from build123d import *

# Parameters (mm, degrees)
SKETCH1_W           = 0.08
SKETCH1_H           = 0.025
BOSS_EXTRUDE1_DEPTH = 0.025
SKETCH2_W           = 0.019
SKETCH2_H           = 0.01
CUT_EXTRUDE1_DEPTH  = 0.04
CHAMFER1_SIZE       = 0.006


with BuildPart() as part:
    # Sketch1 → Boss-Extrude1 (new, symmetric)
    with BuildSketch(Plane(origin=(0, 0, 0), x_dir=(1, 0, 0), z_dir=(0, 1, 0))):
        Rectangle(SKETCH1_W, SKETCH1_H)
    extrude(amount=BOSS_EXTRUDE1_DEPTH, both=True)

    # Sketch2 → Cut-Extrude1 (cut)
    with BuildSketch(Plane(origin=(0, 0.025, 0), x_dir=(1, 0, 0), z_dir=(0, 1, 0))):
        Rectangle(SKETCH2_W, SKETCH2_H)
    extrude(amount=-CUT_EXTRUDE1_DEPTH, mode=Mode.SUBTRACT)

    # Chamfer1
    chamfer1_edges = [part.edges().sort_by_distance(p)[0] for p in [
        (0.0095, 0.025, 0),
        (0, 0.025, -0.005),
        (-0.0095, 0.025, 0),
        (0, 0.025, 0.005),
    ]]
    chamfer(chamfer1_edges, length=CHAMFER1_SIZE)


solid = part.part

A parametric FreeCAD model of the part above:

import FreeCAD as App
import Part
import Sketcher

V = App.Vector


def edges_at(feature, points):
    """Names of the edges that pass closest to the given points."""
    edges = feature.Shape.Edges
    near = lambda p: min(range(len(edges)), key=lambda i: edges[i].distToShape(Part.Vertex(*p))[0])
    return sorted({f"Edge{near(p) + 1}" for p in points})

doc = App.newDocument("Part")
params = doc.addObject("Spreadsheet::Sheet", "Params")
for row, (alias, value) in enumerate([
    ("sketch1_width", "0.08 mm"),
    ("pad1_length", "0.05 mm"),
    ("sketch2_height", "0.01 mm"),
    ("pocket1_length", "0.04 mm"),
    ("chamfer_size", "0.006 mm"),
], start=1):
    params.set(f"A{row}", alias)
    params.set(f"B{row}", "=" + value)
    params.setAlias(f"B{row}", alias)

body = doc.addObject("PartDesign::Body", "Body")

# Sketch on XZ plane
sketch1 = doc.addObject("Sketcher::SketchObject", "Sketch")
body.addObject(sketch1)
sketch1.AttachmentSupport = (doc.XZ_Plane, [""])
sketch1.MapMode = "FlatFace"
sketch1.addGeometry(Part.LineSegment(V(-0.04, -0.013, 0), V(-0.04, 0.013, 0)), False)
sketch1.addGeometry(Part.LineSegment(V(-0.04, 0.013, 0), V(0.04, 0.013, 0)), False)
sketch1.addGeometry(Part.LineSegment(V(0.04, 0.013, 0), V(0.04, -0.013, 0)), False)
sketch1.addGeometry(Part.LineSegment(V(0.04, -0.013, 0), V(-0.04, -0.013, 0)), False)
sketch1.addConstraint(Sketcher.Constraint("Coincident", 0, 2, 1, 1))
sketch1.addConstraint(Sketcher.Constraint("Coincident", 1, 2, 2, 1))
sketch1.addConstraint(Sketcher.Constraint("Coincident", 2, 2, 3, 1))
sketch1.addConstraint(Sketcher.Constraint("Coincident", 3, 2, 0, 1))
sketch1.addConstraint(Sketcher.Constraint("Vertical", 0))
sketch1.addConstraint(Sketcher.Constraint("Horizontal", 1))
sketch1.addConstraint(Sketcher.Constraint("Vertical", 2))
sketch1.addConstraint(Sketcher.Constraint("Horizontal", 3))
sketch1.addConstraint(Sketcher.Constraint("Symmetric", 0, 2, 2, 2, -1, 1))
sketch1.addConstraint(Sketcher.Constraint("DistanceX", 1, 1, 1, 2, 0.08))
sketch1.addConstraint(Sketcher.Constraint("DistanceY", 0, 1, 0, 2, 0.025))
sketch1.setExpression("Constraints[9]", "Params.sketch1_width")
pad1 = doc.addObject("PartDesign::Pad", "Pad")
body.addObject(pad1)
pad1.Profile = sketch1
pad1.setExpression("Length", "Params.pad1_length")
pad1.Midplane = True

# Sketch on XZ plane
sketch2 = doc.addObject("Sketcher::SketchObject", "Sketch001")
body.addObject(sketch2)
sketch2.AttachmentSupport = (doc.XZ_Plane, [""])
sketch2.MapMode = "FlatFace"
sketch2.AttachmentOffset = App.Placement(V(0, 0, -0.025), App.Rotation())
sketch2.addGeometry(Part.LineSegment(V(-0.009, -0.005, 0), V(-0.009, 0.005, 0)), False)
sketch2.addGeometry(Part.LineSegment(V(-0.009, 0.005, 0), V(0.009, 0.005, 0)), False)
sketch2.addGeometry(Part.LineSegment(V(0.009, 0.005, 0), V(0.009, -0.005, 0)), False)
sketch2.addGeometry(Part.LineSegment(V(0.009, -0.005, 0), V(-0.009, -0.005, 0)), False)
sketch2.addConstraint(Sketcher.Constraint("Coincident", 0, 2, 1, 1))
sketch2.addConstraint(Sketcher.Constraint("Coincident", 1, 2, 2, 1))
sketch2.addConstraint(Sketcher.Constraint("Coincident", 2, 2, 3, 1))
sketch2.addConstraint(Sketcher.Constraint("Coincident", 3, 2, 0, 1))
sketch2.addConstraint(Sketcher.Constraint("Vertical", 0))
sketch2.addConstraint(Sketcher.Constraint("Horizontal", 1))
sketch2.addConstraint(Sketcher.Constraint("Vertical", 2))
sketch2.addConstraint(Sketcher.Constraint("Horizontal", 3))
sketch2.addConstraint(Sketcher.Constraint("Symmetric", 0, 2, 2, 2, -1, 1))
sketch2.addConstraint(Sketcher.Constraint("DistanceY", 0, 1, 0, 2, 0.01))
sketch2.addConstraint(Sketcher.Constraint("DistanceX", 1, 1, 1, 2, 0.019))
sketch2.setExpression("Constraints[9]", "Params.sketch2_height")
pocket1 = doc.addObject("PartDesign::Pocket", "Pocket")
body.addObject(pocket1)
pocket1.Profile = sketch2
pocket1.setExpression("Length", "Params.pocket1_length")
pocket1.Reversed = True
doc.recompute()

chamfer = doc.addObject("PartDesign::Chamfer", "Chamfer")
body.addObject(chamfer)
chamfer.Base = (pocket1, edges_at(pocket1, [
    (0.009, 0.025, 0),
    (0, 0.025, -0.005),
    (-0.009, 0.025, 0),
    (0, 0.025, 0.005),
]))
chamfer.setExpression("Size", "Params.chamfer_size")

doc.recompute()
